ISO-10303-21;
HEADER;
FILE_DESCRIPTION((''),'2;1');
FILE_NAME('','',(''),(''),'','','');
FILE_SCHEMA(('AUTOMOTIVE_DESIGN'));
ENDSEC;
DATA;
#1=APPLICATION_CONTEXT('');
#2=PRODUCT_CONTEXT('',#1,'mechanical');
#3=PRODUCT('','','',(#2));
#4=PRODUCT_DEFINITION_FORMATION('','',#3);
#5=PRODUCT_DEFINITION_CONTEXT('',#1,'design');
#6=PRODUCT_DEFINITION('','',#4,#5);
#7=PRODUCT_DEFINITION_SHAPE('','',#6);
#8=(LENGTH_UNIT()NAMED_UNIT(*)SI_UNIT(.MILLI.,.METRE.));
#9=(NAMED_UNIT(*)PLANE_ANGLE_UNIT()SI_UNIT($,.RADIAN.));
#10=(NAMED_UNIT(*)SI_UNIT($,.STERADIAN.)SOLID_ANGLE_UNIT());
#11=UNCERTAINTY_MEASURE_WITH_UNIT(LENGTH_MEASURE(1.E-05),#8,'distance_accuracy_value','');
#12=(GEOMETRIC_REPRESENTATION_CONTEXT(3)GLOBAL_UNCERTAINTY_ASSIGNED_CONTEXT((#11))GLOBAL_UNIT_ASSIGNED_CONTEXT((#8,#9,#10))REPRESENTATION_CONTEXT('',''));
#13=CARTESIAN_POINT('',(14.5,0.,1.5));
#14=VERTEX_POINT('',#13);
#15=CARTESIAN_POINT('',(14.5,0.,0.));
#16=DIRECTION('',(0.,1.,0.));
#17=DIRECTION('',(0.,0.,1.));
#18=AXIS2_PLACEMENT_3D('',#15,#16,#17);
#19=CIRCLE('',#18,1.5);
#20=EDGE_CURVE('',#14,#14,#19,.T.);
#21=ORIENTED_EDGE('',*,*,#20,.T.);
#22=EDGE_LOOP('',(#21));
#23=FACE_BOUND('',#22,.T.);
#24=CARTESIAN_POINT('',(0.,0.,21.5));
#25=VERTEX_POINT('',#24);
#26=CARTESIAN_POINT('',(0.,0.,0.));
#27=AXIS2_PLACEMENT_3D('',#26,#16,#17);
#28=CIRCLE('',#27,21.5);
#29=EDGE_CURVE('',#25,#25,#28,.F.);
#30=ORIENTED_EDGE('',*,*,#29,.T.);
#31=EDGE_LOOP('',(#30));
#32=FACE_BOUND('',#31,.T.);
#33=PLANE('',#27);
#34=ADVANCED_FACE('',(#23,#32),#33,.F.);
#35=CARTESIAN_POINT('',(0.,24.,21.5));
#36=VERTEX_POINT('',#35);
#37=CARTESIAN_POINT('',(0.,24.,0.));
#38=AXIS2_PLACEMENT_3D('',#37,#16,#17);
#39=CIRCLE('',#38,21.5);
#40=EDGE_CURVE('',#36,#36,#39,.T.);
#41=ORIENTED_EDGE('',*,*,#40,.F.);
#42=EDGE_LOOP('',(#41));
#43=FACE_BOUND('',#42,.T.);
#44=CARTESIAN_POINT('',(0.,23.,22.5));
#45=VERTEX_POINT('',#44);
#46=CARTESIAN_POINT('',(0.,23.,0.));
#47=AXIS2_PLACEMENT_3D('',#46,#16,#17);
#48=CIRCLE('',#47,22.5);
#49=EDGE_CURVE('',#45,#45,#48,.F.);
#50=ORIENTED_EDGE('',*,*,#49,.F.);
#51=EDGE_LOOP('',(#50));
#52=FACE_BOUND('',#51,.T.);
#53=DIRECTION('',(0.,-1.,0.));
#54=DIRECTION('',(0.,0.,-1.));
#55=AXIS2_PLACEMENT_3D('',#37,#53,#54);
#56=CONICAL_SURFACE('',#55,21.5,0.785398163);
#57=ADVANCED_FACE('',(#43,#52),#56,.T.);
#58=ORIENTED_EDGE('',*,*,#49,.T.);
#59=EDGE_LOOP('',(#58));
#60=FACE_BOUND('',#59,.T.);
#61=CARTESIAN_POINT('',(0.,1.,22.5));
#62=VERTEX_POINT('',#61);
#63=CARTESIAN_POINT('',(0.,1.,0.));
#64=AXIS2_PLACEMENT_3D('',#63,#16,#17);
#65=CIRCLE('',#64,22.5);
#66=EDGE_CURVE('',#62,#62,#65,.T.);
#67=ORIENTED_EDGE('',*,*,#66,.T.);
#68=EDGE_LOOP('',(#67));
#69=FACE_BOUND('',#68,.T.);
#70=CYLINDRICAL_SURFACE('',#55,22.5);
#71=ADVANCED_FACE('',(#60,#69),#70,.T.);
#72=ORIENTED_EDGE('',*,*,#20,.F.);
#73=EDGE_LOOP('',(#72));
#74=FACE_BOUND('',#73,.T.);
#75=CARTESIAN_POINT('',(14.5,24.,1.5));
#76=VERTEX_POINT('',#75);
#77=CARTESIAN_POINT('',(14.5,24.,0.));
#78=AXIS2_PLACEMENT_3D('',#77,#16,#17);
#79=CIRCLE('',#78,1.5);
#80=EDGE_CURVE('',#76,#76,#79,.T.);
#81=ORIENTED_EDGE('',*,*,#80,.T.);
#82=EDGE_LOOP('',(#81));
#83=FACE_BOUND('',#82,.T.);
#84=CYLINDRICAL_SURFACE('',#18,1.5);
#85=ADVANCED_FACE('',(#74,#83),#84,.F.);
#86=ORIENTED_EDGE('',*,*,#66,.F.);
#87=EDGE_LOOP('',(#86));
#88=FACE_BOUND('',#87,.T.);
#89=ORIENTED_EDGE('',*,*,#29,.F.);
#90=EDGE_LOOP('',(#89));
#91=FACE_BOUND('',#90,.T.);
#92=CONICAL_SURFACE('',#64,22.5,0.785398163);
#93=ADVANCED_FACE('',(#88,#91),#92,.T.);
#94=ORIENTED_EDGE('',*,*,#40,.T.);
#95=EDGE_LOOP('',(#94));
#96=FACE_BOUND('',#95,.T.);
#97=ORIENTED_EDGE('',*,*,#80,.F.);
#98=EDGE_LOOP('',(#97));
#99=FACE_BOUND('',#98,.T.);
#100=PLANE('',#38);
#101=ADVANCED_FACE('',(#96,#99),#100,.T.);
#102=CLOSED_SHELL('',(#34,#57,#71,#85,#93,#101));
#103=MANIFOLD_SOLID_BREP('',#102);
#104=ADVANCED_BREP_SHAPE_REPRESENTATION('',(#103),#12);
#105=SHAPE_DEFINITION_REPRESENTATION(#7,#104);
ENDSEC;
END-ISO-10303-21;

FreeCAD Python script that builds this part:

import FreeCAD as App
import Part
import Sketcher
from FreeCAD import Vector
Q = App.Units.Quantity


def edges_at(feature, points):
    """Names of the edges that pass closest to the given points."""
    edges = feature.Shape.Edges
    near = lambda p: min(range(len(edges)), key=lambda i: edges[i].distToShape(Part.Vertex(*p))[0])
    return sorted({f"Edge{near(p) + 1}" for p in points})

doc = App.newDocument("Part")
body = doc.addObject("PartDesign::Body", "Body")

# Sketch on XZ plane
sketch1 = doc.addObject("Sketcher::SketchObject", "Sketch")
body.addObject(sketch1)
sketch1.AttachmentSupport = (doc.XZ_Plane, [""])
sketch1.MapMode = "FlatFace"
sketch1.addGeometry(Part.Circle(Vector(0, 0, 0), Vector(0, 0, 1), 22.5), False)
sketch1.addConstraint([
    Sketcher.Constraint("Coincident", 0, 3, -1, 1),
    Sketcher.Constraint("Diameter", 0, Q("45 mm")),
])
pad1 = doc.addObject("PartDesign::Pad", "Pad")
body.addObject(pad1)
pad1.Profile = sketch1
pad1.Length = 24
pad1.Reversed = True
doc.recompute()

chamfer = doc.addObject("PartDesign::Chamfer", "Chamfer")
body.addObject(chamfer)
chamfer.Base = (pad1, edges_at(pad1, [(0, 0, -22.5), (0, 24, -22.5)]))
chamfer.Size = 1

# Sketch on XZ plane
sketch2 = doc.addObject("Sketcher::SketchObject", "Sketch001")
body.addObject(sketch2)
sketch2.AttachmentSupport = (doc.XZ_Plane, [""])
sketch2.MapMode = "FlatFace"
sketch2.AttachmentOffset = App.Placement(Vector(0, 0, -24), App.Rotation())
sketch2.addGeometry(Part.Circle(Vector(14.5, 0, 0), Vector(0, 0, 1), 1.5), False)
sketch2.addConstraint([
    Sketcher.Constraint("PointOnObject", 0, 3, -1),
    Sketcher.Constraint("Diameter", 0, Q("3 mm")),
    Sketcher.Constraint("DistanceX", -1, 1, 0, 3, Q("14.5 mm")),
])
pocket1 = doc.addObject("PartDesign::Pocket", "Pocket")
body.addObject(pocket1)
pocket1.Profile = sketch2
pocket1.Type = "ThroughAll"
pocket1.Reversed = True

doc.recompute()
